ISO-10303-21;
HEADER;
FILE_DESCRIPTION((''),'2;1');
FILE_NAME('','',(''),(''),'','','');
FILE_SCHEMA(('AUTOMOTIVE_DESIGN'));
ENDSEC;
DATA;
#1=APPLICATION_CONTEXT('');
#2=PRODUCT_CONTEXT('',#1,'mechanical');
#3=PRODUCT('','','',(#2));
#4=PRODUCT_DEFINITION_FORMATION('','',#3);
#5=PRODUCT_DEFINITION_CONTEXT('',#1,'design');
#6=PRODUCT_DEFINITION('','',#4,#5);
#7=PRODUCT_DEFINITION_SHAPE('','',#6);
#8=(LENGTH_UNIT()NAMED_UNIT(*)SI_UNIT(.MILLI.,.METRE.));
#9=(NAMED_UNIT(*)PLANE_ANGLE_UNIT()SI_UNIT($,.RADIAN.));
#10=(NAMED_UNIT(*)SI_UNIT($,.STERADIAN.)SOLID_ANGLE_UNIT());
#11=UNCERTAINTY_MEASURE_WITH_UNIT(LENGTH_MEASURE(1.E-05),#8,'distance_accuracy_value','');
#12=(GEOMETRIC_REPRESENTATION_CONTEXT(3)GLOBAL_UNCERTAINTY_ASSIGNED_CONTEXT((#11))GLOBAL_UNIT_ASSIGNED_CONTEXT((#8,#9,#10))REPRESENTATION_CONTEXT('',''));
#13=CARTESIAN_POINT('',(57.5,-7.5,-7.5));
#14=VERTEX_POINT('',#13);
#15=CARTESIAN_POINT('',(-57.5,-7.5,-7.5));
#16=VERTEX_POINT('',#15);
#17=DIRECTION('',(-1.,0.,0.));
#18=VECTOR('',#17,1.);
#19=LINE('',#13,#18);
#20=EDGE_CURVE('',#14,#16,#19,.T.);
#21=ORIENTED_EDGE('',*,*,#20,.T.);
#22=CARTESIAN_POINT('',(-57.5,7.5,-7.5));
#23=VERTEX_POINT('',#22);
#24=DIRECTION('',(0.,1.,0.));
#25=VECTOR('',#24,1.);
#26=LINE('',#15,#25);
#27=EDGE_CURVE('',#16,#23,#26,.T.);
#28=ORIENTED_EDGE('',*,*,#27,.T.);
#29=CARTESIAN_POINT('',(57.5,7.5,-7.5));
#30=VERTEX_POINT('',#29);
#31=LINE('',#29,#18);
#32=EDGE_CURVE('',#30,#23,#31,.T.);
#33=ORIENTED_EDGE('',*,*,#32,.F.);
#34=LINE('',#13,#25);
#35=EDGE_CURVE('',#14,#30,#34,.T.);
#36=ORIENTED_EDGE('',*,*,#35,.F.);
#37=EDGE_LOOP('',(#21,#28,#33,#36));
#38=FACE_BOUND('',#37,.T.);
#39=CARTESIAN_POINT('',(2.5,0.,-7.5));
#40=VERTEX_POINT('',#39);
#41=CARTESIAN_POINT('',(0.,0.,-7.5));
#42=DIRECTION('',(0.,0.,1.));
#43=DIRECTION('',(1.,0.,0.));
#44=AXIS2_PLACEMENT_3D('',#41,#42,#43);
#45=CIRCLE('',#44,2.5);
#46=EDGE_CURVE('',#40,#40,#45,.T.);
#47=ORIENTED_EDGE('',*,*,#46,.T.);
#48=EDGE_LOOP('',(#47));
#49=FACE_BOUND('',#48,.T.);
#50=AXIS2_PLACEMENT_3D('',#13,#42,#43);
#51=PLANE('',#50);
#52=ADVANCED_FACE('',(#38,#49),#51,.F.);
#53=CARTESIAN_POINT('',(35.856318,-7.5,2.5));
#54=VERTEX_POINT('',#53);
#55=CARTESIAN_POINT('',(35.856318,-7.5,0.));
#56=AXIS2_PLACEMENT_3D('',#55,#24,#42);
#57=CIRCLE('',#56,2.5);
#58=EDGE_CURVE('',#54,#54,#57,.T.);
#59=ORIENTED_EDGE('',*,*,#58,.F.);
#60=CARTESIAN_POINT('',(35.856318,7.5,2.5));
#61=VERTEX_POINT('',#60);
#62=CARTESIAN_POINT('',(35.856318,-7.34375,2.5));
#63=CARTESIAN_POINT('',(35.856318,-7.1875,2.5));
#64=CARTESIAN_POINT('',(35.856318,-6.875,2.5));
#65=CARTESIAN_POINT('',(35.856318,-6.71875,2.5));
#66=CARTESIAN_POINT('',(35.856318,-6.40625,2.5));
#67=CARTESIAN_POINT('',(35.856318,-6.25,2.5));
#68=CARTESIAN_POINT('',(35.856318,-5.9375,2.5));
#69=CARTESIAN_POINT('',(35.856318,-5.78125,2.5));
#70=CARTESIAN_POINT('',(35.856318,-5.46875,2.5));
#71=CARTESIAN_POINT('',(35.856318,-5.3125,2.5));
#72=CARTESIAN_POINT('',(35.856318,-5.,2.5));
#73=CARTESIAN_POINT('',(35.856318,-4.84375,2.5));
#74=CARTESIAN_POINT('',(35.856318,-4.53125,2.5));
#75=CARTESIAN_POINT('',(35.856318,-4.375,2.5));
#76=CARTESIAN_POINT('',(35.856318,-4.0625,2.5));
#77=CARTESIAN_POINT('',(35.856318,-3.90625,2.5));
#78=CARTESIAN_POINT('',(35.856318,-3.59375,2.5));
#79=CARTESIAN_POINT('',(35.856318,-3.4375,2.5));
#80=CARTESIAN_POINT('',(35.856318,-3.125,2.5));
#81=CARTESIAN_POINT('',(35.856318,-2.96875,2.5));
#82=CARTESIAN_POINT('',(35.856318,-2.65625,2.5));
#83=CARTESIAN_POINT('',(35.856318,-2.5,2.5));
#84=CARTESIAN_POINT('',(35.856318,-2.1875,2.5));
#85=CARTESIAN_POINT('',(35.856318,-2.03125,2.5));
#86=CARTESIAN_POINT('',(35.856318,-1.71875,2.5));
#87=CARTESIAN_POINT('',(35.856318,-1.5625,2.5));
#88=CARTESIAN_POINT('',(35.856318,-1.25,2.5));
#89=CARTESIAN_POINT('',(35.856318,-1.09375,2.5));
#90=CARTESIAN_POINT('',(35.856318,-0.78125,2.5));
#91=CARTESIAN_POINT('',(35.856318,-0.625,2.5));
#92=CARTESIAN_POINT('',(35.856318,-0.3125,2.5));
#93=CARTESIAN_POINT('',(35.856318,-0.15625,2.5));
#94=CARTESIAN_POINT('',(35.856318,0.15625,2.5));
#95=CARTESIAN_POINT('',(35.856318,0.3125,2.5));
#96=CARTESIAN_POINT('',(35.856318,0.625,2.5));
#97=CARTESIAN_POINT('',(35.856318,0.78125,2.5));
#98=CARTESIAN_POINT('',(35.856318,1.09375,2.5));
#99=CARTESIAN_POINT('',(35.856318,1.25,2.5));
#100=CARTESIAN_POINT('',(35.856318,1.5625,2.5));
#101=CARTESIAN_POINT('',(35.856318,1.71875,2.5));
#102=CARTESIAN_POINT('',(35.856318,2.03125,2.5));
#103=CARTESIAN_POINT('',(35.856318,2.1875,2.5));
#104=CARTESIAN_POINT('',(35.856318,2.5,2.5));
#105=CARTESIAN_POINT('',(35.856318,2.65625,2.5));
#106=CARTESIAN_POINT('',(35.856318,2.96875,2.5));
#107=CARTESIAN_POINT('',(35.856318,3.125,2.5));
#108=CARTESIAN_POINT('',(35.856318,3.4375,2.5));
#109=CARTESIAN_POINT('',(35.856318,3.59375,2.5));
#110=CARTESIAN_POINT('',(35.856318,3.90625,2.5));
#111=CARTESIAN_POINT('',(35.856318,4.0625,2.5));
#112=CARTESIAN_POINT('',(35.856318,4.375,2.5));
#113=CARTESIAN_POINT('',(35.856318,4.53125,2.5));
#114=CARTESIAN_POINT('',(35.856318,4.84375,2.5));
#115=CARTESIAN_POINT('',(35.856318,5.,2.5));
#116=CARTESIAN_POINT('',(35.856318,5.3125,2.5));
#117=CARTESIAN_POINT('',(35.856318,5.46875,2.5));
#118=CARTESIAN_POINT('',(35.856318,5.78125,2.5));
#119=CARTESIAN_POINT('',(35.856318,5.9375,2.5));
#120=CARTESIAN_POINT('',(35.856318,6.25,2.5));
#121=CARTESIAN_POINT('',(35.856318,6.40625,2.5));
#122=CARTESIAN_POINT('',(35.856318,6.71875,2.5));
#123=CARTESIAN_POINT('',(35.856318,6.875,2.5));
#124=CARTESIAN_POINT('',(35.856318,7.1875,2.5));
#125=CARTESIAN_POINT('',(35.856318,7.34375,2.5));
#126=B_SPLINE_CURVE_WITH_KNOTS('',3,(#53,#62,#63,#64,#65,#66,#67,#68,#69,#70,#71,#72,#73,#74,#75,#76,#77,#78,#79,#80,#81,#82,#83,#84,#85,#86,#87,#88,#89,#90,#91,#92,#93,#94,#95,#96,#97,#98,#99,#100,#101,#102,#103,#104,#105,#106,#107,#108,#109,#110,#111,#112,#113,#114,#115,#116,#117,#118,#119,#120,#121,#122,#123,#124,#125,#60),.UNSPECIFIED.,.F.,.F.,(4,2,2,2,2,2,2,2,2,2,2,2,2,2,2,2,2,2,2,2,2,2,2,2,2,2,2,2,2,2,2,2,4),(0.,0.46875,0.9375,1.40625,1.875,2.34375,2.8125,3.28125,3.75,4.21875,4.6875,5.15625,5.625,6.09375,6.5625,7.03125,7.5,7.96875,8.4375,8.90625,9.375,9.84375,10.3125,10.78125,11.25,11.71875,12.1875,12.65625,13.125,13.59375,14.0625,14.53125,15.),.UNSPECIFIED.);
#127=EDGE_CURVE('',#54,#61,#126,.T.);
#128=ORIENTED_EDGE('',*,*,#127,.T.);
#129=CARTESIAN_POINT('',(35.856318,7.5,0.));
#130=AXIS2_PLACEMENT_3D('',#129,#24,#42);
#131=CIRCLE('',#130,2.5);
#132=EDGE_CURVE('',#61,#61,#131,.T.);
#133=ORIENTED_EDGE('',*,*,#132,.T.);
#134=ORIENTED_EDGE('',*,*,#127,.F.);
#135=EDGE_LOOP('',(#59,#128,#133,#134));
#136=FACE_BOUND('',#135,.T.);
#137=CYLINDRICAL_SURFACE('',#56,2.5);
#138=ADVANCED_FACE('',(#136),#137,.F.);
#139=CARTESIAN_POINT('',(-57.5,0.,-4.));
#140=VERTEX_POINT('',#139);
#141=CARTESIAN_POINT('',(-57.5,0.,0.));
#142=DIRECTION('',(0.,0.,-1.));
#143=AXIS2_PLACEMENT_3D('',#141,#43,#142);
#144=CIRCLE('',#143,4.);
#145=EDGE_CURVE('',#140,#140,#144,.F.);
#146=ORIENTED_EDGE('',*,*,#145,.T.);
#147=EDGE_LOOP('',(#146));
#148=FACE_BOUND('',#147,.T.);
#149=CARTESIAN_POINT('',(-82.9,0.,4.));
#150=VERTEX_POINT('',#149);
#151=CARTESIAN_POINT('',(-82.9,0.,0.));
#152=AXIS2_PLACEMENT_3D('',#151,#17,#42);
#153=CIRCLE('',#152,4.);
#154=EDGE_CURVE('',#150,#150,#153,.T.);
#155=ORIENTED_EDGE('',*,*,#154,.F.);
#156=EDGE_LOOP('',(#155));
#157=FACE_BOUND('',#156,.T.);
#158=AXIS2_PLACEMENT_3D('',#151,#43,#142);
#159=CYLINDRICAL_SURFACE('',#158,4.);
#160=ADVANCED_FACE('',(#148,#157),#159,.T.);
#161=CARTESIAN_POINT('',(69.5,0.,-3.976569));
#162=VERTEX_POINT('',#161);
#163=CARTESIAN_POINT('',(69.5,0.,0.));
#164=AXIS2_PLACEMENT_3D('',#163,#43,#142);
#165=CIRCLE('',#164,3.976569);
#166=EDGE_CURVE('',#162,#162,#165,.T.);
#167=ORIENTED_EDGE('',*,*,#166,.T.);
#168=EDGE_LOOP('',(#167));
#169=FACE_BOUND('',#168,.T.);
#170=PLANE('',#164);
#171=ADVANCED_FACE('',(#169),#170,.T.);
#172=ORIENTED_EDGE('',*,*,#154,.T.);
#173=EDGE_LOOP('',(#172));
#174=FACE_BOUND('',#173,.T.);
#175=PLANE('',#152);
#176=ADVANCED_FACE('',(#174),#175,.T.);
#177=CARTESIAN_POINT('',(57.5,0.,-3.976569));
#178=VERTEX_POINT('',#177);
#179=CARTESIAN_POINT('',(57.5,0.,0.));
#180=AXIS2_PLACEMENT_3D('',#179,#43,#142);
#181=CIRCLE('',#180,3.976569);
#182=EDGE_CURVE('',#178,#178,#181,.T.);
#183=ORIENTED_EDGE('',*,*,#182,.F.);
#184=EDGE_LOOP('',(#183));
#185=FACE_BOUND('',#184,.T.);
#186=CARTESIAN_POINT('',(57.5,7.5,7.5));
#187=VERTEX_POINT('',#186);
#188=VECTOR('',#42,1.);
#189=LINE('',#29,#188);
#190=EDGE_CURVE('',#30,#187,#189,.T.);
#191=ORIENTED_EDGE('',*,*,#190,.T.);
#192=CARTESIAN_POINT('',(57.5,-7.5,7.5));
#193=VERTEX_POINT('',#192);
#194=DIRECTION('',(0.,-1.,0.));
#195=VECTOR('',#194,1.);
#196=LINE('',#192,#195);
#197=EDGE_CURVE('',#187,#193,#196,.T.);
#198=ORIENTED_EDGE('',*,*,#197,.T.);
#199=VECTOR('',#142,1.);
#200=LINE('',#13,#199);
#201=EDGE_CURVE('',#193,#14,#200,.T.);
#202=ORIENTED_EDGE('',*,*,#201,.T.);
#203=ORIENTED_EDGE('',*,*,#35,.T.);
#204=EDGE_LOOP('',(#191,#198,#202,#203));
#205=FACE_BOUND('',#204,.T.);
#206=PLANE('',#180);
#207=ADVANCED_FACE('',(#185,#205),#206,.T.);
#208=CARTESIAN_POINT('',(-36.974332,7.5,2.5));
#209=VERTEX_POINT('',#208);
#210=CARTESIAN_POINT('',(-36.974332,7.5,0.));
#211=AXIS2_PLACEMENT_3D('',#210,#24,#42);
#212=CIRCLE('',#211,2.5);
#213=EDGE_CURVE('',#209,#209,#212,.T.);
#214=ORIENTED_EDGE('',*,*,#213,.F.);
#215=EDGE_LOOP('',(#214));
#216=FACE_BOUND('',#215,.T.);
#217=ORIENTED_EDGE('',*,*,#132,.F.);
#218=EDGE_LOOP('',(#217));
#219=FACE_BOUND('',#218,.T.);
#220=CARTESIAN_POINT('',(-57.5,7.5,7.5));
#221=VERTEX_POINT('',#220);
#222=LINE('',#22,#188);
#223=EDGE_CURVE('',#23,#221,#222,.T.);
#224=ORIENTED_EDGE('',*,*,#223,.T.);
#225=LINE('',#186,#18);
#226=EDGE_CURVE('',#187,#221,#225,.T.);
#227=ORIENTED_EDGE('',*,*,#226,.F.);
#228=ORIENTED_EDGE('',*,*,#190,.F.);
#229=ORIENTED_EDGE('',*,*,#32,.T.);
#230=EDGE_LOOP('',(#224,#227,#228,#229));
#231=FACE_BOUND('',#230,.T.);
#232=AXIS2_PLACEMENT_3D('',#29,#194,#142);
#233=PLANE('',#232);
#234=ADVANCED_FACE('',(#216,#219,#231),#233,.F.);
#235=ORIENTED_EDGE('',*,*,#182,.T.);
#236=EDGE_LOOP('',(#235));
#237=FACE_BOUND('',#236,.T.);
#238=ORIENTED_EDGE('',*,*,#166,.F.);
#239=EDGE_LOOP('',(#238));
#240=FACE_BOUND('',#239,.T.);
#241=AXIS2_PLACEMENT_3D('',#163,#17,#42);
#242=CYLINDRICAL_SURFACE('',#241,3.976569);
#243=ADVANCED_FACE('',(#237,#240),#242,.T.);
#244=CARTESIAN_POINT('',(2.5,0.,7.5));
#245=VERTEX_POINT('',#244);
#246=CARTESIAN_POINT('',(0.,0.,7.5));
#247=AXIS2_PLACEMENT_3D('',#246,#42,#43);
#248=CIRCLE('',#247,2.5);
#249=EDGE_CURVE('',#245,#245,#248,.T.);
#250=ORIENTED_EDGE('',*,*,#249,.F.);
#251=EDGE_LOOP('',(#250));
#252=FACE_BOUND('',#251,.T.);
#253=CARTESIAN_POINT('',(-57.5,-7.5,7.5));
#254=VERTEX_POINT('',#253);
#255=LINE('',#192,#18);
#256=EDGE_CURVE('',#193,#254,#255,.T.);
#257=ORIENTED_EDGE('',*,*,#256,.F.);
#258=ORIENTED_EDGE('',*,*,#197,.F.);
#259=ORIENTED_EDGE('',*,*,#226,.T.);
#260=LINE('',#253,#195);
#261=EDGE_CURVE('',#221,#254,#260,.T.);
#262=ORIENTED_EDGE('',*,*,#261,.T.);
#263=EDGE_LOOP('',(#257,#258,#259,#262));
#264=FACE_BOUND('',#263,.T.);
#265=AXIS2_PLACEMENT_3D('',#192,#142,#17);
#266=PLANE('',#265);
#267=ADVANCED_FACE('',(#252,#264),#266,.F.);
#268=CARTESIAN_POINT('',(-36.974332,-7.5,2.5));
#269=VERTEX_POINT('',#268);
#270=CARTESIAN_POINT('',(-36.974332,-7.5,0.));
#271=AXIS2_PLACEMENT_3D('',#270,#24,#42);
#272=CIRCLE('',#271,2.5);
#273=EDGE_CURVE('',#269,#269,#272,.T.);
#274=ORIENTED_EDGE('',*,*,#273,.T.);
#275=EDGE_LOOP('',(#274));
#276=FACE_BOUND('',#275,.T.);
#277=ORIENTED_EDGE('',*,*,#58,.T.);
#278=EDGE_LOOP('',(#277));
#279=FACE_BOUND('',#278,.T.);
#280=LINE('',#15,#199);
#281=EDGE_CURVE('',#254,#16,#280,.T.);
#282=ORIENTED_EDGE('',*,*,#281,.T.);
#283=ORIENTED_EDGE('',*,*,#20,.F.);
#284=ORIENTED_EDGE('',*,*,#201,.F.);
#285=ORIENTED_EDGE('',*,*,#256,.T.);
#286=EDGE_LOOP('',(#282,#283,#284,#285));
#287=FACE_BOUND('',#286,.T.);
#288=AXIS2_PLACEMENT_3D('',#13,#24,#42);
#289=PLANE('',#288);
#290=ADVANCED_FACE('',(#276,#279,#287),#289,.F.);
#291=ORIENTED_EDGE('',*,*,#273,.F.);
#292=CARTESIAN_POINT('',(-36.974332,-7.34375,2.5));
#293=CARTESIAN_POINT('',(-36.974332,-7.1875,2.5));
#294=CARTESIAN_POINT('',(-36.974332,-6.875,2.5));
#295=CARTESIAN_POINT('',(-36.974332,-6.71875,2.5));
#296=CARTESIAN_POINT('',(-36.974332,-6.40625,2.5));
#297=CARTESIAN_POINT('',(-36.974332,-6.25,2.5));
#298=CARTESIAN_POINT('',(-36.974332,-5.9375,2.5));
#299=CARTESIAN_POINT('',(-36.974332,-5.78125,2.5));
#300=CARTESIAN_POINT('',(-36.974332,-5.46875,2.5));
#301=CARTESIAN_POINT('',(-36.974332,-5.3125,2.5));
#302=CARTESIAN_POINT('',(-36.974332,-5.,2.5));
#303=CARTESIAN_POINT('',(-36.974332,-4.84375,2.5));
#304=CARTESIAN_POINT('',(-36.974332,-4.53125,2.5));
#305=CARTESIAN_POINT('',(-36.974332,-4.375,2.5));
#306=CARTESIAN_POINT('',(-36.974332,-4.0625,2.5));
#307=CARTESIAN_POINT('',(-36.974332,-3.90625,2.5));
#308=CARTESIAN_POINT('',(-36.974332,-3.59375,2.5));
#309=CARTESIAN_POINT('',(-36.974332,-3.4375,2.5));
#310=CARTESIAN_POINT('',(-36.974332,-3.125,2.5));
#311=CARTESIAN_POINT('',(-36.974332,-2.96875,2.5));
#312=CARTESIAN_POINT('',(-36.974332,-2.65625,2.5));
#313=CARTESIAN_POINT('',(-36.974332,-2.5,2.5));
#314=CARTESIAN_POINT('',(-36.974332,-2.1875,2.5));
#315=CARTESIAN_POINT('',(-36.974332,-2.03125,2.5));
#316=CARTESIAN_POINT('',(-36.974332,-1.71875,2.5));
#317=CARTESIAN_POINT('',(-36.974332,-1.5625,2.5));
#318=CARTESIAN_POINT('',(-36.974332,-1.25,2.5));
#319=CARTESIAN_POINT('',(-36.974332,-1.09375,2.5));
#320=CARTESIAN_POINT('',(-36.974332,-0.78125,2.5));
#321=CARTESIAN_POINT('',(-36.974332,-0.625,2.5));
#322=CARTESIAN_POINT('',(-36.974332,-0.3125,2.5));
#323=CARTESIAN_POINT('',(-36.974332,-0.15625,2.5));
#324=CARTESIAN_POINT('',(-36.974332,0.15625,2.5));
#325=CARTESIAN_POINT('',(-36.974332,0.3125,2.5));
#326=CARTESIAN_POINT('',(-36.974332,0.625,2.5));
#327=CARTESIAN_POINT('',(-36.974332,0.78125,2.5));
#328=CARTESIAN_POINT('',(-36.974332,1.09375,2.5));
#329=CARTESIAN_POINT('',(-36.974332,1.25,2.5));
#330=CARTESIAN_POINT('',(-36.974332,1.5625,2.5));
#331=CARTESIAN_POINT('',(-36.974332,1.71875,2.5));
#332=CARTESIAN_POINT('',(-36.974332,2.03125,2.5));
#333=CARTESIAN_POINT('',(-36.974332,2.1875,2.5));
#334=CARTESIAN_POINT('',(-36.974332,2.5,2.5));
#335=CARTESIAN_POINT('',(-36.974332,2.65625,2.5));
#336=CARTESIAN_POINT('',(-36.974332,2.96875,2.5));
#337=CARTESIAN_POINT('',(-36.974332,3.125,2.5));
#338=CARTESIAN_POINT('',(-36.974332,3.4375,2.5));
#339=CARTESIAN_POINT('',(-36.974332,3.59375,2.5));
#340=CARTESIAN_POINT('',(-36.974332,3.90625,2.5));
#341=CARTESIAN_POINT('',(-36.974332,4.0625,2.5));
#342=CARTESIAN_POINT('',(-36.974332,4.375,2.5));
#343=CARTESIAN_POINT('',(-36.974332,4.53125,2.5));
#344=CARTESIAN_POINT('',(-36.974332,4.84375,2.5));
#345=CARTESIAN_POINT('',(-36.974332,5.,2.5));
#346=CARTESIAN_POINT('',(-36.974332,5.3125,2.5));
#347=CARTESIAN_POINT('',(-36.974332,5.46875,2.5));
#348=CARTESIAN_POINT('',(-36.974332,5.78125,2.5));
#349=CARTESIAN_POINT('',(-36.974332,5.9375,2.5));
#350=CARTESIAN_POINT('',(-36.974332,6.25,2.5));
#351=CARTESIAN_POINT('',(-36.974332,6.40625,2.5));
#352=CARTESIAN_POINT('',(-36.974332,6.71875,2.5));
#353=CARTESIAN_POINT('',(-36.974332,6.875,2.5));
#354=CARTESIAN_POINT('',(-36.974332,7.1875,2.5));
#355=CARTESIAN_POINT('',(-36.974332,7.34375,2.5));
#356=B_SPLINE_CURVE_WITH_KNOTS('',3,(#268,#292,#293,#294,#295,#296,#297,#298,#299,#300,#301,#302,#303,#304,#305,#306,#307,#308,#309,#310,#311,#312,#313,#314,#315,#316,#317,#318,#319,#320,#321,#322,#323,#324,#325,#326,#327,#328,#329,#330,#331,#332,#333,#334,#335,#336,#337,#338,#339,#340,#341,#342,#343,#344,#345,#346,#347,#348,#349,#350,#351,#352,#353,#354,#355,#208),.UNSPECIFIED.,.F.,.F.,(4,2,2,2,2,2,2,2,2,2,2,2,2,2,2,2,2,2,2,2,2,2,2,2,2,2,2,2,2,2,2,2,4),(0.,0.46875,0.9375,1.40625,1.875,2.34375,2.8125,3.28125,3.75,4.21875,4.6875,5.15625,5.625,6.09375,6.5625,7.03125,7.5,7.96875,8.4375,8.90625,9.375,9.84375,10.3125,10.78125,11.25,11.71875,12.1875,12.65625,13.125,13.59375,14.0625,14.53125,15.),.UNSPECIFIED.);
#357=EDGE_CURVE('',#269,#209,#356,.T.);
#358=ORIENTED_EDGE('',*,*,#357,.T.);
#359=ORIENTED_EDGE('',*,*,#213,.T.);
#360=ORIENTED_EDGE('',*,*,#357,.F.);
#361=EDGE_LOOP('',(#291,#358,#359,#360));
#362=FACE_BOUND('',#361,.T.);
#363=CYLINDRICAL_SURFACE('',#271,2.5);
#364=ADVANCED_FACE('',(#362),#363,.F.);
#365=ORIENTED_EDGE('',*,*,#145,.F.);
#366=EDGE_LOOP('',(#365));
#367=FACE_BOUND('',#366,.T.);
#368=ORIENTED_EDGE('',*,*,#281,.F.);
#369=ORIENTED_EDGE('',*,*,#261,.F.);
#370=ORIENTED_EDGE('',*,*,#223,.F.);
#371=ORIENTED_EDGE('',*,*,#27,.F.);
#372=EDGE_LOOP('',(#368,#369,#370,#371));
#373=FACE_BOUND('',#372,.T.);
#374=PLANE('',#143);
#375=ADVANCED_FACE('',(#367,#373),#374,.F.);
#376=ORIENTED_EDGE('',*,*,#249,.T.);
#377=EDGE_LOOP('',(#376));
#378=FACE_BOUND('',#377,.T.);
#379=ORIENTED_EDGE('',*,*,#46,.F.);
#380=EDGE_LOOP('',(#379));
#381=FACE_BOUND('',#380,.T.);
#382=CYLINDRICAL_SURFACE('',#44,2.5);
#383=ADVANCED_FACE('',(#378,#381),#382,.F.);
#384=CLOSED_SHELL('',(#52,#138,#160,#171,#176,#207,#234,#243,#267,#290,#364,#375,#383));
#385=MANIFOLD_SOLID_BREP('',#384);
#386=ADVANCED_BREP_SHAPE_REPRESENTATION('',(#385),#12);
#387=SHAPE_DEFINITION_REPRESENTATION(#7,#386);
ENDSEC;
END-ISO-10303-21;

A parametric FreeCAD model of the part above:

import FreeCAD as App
import Part
import Sketcher

V = App.Vector
Q = App.Units.Quantity

doc = App.newDocument("Part")
body = doc.addObject("PartDesign::Body", "Body")

sketch1 = body.newObject("Sketcher::SketchObject", "Sketch")
sketch1.AttachmentSupport = (doc.getObject("YZ_Plane"), [""])
sketch1.MapMode = "FlatFace"
sketch1.addGeometry(Part.LineSegment(V(7.5, 7.5, 0), V(-7.5, 7.5, 0)), False)
sketch1.addGeometry(Part.LineSegment(V(-7.5, 7.5, 0), V(-7.5, -7.5, 0)), False)
sketch1.addGeometry(Part.LineSegment(V(-7.5, -7.5, 0), V(7.5, -7.5, 0)), False)
sketch1.addGeometry(Part.LineSegment(V(7.5, -7.5, 0), V(7.5, 7.5, 0)), False)
sketch1.addConstraint(Sketcher.Constraint("Coincident", 0, 2, 1, 1))
sketch1.addConstraint(Sketcher.Constraint("Coincident", 1, 2, 2, 1))
sketch1.addConstraint(Sketcher.Constraint("Coincident", 2, 2, 3, 1))
sketch1.addConstraint(Sketcher.Constraint("Coincident", 3, 2, 0, 1))
sketch1.addConstraint(Sketcher.Constraint("Horizontal", 0))
sketch1.addConstraint(Sketcher.Constraint("Vertical", 1))
sketch1.addConstraint(Sketcher.Constraint("Horizontal", 2))
sketch1.addConstraint(Sketcher.Constraint("Vertical", 3))
sketch1.addConstraint(Sketcher.Constraint("Symmetric", 0, 2, 2, 2, -1, 1))
sketch1.addConstraint(Sketcher.Constraint("Equal", 2, 1))
sketch1.addConstraint(Sketcher.Constraint("DistanceX", 0, 2, 0, 1, Q("15 mm")))
pad1 = body.newObject("PartDesign::Pad", "Pad")
pad1.Profile = sketch1
pad1.Length = 115
pad1.Midplane = True

sketch2 = body.newObject("Sketcher::SketchObject", "Sketch001")
sketch2.AttachmentSupport = (doc.getObject("XY_Plane"), [""])
sketch2.MapMode = "FlatFace"
sketch2.AttachmentOffset = App.Placement(V(0, 0, 7.5), App.Rotation())
sketch2.addGeometry(Part.Circle(V(0, 0, 0), V(0, 0, 1), 2.5), False)
sketch2.addConstraint(Sketcher.Constraint("Coincident", 0, 3, -1, 1))
sketch2.addConstraint(Sketcher.Constraint("Diameter", 0, Q("5 mm")))
pocket1 = body.newObject("PartDesign::Pocket", "Pocket")
pocket1.Profile = sketch2
pocket1.Type = "ThroughAll"

sketch3 = body.newObject("Sketcher::SketchObject", "Sketch002")
sketch3.AttachmentSupport = (doc.getObject("XZ_Plane"), [""])
sketch3.MapMode = "FlatFace"
sketch3.AttachmentOffset = App.Placement(V(0, 0, -7.5), App.Rotation())
sketch3.addGeometry(Part.Circle(V(-36.974332, 0, 0), V(0, 0, 1), 2.5), False)
sketch3.addGeometry(Part.Circle(V(35.856318, 0, 0), V(0, 0, 1), 2.5), False)
sketch3.addConstraint(Sketcher.Constraint("Equal", 0, 1))
sketch3.addConstraint(Sketcher.Constraint("PointOnObject", 0, 3, -1))
sketch3.addConstraint(Sketcher.Constraint("PointOnObject", 1, 3, -1))
sketch3.addConstraint(Sketcher.Constraint("Diameter", 0, Q("5 mm")))
sketch3.addConstraint(Sketcher.Constraint("DistanceX", 0, 3, 1, 3, Q("72.83065 mm")))
sketch3.addConstraint(Sketcher.Constraint("DistanceX", 0, 3, -1, 1, Q("36.974332 mm")))
pocket2 = body.newObject("PartDesign::Pocket", "Pocket001")
pocket2.Profile = sketch3
pocket2.Type = "ThroughAll"
pocket2.Reversed = True

sketch4 = body.newObject("Sketcher::SketchObject", "Sketch003")
sketch4.AttachmentSupport = (doc.getObject("YZ_Plane"), [""])
sketch4.MapMode = "FlatFace"
sketch4.AttachmentOffset = App.Placement(V(0, 0, -57.5), App.Rotation())
sketch4.addGeometry(Part.Circle(V(0, 0, 0), V(0, 0, 1), 4), False)
sketch4.addConstraint(Sketcher.Constraint("Coincident", 0, 3, -1, 1))
sketch4.addConstraint(Sketcher.Constraint("Diameter", 0, Q("8 mm")))
pad2 = body.newObject("PartDesign::Pad", "Pad001")
pad2.Profile = sketch4
pad2.Length = 25.4
pad2.Reversed = True

sketch5 = body.newObject("Sketcher::SketchObject", "Sketch004")
sketch5.AttachmentSupport = (doc.getObject("YZ_Plane"), [""])
sketch5.MapMode = "FlatFace"
sketch5.AttachmentOffset = App.Placement(V(0, 0, 57.5), App.Rotation())
sketch5.addGeometry(Part.Circle(V(0, 0, 0), V(0, 0, 1), 3.976569), False)
sketch5.addConstraint(Sketcher.Constraint("Coincident", 0, 3, -1, 1))
sketch5.addConstraint(Sketcher.Constraint("Diameter", 0, Q("7.953138 mm")))
pad3 = body.newObject("PartDesign::Pad", "Pad002")
pad3.Profile = sketch5
pad3.Length = 12

doc.recompute()
